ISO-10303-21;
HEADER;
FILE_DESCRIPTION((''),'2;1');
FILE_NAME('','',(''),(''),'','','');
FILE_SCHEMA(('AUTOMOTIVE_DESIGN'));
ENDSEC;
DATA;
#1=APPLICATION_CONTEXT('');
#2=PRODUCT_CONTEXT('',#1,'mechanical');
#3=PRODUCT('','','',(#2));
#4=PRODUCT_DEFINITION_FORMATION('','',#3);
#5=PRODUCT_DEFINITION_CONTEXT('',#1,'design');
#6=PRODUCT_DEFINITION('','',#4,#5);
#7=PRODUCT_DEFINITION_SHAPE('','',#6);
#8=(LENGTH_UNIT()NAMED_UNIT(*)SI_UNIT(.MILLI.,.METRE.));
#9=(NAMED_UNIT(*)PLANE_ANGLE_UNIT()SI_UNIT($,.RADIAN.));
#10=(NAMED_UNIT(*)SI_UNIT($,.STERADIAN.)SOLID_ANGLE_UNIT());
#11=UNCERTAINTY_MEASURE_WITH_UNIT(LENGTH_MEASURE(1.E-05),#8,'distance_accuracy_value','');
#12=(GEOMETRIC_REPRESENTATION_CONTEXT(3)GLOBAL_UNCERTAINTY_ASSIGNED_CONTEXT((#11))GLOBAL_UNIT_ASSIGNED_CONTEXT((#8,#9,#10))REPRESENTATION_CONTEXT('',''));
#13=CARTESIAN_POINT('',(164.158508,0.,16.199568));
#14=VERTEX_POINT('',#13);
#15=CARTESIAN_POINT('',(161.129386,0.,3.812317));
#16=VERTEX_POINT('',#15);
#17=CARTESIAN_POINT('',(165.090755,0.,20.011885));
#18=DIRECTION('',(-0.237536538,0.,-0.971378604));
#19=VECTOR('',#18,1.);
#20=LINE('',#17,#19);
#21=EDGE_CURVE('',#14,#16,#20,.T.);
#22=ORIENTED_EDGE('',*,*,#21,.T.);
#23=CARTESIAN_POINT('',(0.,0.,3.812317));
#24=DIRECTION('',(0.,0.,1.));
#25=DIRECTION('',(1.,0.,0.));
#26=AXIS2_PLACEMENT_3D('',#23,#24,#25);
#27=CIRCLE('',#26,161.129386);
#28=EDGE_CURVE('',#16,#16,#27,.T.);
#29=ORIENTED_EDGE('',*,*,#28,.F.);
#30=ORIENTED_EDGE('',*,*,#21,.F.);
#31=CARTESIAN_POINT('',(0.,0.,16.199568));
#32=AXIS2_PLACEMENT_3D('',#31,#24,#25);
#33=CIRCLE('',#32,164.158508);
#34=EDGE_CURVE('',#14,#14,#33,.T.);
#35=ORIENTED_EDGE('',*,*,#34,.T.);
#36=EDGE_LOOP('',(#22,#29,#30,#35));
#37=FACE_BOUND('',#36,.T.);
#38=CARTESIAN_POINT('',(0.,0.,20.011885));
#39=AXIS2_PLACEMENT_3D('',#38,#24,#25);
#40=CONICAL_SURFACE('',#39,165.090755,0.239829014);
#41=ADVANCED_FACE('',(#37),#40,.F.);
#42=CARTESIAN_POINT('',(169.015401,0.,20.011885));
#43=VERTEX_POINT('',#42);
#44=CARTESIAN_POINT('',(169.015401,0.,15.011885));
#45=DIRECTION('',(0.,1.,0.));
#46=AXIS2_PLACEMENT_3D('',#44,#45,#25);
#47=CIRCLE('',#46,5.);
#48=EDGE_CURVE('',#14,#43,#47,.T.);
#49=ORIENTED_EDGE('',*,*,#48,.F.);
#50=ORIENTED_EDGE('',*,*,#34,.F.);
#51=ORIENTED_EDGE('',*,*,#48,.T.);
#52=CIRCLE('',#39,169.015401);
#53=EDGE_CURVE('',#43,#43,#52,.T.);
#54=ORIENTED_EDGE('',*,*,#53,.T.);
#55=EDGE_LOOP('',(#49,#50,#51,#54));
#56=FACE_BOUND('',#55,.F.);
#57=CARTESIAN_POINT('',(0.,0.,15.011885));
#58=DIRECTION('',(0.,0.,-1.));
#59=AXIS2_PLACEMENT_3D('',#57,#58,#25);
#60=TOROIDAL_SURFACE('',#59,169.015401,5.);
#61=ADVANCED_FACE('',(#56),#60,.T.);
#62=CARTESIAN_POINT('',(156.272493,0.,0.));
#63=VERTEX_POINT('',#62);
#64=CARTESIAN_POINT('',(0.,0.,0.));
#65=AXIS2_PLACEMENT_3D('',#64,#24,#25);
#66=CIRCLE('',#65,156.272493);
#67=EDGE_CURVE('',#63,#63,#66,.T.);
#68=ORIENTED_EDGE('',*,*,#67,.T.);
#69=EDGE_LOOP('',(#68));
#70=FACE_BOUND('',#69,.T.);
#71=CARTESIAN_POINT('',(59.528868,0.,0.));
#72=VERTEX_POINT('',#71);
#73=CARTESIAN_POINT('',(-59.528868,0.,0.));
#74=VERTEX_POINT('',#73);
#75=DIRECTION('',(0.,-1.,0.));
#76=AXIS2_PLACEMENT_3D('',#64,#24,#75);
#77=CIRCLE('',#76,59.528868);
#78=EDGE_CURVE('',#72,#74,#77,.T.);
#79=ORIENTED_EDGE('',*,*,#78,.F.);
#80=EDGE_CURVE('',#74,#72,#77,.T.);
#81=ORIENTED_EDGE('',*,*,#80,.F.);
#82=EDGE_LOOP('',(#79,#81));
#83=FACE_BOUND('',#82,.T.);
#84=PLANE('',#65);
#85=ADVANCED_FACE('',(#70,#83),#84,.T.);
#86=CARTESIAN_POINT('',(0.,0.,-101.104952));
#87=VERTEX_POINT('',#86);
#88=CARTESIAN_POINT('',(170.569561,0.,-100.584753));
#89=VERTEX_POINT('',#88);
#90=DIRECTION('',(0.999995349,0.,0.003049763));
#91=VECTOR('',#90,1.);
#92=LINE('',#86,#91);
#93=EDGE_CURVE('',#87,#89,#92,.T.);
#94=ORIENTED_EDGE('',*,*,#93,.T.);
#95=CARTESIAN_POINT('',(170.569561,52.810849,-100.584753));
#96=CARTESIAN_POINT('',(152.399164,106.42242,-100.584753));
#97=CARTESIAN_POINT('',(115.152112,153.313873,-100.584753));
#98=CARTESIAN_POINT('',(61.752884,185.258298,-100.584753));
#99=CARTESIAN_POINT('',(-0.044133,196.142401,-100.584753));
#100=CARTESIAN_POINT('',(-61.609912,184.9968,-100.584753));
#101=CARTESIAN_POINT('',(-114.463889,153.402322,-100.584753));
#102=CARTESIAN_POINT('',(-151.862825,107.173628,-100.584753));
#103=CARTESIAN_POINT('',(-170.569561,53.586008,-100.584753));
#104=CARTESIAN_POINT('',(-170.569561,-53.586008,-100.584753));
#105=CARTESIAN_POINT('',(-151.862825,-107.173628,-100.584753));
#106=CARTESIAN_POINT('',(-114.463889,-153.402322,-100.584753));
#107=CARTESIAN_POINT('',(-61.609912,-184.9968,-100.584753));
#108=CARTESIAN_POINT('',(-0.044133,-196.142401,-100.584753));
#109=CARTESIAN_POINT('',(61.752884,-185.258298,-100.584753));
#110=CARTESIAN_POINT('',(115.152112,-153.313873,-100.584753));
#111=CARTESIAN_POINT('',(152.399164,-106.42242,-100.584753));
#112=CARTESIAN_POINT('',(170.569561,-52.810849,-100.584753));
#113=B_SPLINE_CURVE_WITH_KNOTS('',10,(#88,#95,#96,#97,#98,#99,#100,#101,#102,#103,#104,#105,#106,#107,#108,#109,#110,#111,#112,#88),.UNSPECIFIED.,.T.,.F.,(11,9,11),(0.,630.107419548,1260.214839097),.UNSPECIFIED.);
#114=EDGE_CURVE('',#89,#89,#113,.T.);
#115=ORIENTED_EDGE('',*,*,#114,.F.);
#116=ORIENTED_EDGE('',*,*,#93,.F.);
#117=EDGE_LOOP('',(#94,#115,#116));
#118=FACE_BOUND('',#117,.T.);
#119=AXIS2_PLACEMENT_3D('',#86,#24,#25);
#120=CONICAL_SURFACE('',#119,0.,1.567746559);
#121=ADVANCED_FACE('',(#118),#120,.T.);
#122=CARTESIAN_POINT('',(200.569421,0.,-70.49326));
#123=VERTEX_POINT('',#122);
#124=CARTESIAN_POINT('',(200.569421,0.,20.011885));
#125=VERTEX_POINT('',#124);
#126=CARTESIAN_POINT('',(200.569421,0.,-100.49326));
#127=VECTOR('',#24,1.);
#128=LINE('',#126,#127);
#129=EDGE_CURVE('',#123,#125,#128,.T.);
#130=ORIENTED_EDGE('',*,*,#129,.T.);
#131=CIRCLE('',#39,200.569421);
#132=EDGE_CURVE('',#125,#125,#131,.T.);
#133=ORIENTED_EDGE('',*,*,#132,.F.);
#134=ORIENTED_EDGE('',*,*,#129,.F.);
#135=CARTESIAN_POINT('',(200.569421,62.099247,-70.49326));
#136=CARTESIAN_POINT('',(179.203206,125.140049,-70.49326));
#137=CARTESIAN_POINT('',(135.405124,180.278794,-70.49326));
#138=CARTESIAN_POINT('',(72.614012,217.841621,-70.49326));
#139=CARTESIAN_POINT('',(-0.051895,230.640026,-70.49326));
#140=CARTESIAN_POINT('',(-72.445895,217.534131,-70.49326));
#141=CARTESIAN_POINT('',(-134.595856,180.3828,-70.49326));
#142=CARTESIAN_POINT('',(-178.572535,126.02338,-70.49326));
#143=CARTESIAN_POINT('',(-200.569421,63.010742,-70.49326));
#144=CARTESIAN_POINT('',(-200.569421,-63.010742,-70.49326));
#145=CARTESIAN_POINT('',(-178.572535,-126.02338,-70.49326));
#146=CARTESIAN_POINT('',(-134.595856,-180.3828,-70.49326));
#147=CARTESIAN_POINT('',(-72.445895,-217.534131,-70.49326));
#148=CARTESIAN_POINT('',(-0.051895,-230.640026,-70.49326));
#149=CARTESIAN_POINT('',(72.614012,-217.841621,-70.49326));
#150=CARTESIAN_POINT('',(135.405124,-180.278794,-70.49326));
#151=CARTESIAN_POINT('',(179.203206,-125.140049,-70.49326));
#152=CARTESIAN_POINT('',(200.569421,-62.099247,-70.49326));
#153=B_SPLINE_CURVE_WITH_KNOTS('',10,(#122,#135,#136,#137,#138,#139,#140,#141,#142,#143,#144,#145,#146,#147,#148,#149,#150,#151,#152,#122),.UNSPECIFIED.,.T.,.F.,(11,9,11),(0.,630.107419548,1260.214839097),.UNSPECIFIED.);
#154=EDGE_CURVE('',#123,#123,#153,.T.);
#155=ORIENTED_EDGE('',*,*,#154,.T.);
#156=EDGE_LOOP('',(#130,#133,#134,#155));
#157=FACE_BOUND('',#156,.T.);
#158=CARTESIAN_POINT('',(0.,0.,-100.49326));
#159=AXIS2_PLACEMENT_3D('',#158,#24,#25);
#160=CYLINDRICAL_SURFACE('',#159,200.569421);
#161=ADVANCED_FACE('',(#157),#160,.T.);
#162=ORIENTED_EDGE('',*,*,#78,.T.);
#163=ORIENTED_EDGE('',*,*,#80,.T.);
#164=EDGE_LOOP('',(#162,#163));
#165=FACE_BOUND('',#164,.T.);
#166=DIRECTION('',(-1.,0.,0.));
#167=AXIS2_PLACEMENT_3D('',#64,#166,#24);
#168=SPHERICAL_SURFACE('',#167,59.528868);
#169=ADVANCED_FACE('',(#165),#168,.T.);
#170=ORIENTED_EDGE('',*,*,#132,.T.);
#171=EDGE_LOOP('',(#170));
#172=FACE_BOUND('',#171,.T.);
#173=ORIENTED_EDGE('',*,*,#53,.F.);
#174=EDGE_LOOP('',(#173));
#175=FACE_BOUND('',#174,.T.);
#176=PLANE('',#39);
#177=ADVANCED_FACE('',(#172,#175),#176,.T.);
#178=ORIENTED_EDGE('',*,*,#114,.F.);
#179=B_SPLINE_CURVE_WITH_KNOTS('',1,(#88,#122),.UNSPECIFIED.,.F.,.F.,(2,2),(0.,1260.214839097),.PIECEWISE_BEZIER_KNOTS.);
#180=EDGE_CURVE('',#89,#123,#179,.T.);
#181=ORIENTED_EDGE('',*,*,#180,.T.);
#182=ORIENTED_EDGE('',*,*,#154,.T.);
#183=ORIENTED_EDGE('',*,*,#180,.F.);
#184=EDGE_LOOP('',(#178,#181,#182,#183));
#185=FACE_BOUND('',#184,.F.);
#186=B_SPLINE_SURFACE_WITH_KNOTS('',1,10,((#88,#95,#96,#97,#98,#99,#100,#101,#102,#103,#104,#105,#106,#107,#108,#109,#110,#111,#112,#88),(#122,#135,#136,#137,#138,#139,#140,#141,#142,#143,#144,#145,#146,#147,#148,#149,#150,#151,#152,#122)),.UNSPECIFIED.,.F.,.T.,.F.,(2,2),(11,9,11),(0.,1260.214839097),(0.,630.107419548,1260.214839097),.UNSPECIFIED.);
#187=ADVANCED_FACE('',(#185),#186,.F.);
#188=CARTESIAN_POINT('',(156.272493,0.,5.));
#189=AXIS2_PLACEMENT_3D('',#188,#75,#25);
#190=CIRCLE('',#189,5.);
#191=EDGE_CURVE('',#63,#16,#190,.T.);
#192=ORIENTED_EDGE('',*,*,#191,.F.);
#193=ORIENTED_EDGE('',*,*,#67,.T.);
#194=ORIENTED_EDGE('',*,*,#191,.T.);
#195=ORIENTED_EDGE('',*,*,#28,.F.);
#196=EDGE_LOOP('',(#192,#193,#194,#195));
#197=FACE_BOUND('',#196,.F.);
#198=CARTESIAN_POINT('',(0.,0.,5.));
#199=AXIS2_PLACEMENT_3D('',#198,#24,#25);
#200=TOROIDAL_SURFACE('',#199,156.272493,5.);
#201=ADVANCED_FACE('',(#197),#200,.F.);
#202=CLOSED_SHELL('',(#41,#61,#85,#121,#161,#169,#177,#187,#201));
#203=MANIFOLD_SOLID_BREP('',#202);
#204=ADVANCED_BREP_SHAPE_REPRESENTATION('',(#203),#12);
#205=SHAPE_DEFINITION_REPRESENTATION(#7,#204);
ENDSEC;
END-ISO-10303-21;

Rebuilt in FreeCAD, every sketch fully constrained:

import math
import FreeCAD as App
import Part
import Sketcher

V = App.Vector


def edges_at(feature, points):
    """Names of the edges that pass closest to the given points."""
    edges = feature.Shape.Edges
    near = lambda p: min(range(len(edges)), key=lambda i: edges[i].distToShape(Part.Vertex(*p))[0])
    return sorted({f"Edge{near(p) + 1}" for p in points})


def add_polygon(sketch, points):
    """Adds a closed chain of lines whose ends are joined by coincident constraints."""
    first, n = sketch.GeometryCount, len(points)
    for a, b in zip(points, points[1:] + points[:1]):
        sketch.addGeometry(Part.LineSegment(App.Vector(*a, 0), App.Vector(*b, 0)), False)
    for i in range(n):
        sketch.addConstraint(Sketcher.Constraint("Coincident", first + i, 2, first + (i + 1) % n, 1))

doc = App.newDocument("Part")
params = doc.addObject("Spreadsheet::Sheet", "Params")
for row, (alias, value) in enumerate([
    ("revolution_angle", "360 deg"),
    ("chamfer_size", "30 mm"),
    ("revolution2_angle", "360 deg"),
    ("fillet_radius", "5 mm"),
], start=1):
    params.set(f"A{row}", alias)
    params.set(f"B{row}", "=" + value)
    params.setAlias(f"B{row}", alias)

body = doc.addObject("PartDesign::Body", "Body")

sketch1 = doc.addObject("Sketcher::SketchObject", "Sketch")
body.addObject(sketch1)
sketch1.AttachmentSupport = (doc.XZ_Plane, [""])
sketch1.MapMode = "FlatFace"
add_polygon(sketch1, [(0, 0), (0, -101.104952), (200.569421, -100.49326), (200.569421, 20.011885), (165.090755, 20.011885), (160.197139, 0)])
sketch1.addConstraint(Sketcher.Constraint("Vertical", 0))
sketch1.addConstraint(Sketcher.Constraint("Vertical", 2))
sketch1.addConstraint(Sketcher.Constraint("Horizontal", 3))
sketch1.addConstraint(Sketcher.Constraint("Horizontal", 5))
sketch1.addConstraint(Sketcher.Constraint("Coincident", 5, 2, -1, 1))
sketch1.addConstraint(Sketcher.Constraint("DistanceX", 5, 2, 5, 1, 160.197139))
sketch1.addConstraint(Sketcher.Constraint("DistanceY", 0, 2, 0, 1, 101.104952))
sketch1.addConstraint(Sketcher.Constraint("Distance", 4, 20.60153))
sketch1.addConstraint(Sketcher.Constraint("DistanceX", 3, 2, 3, 1, 35.478666))
sketch1.addConstraint(Sketcher.Constraint("DistanceY", 2, 1, 2, 2, 120.505145))
sketch1.addConstraint(Sketcher.Constraint("DistanceX", -1, 1, 1, 2, 200.569421))
revolution = doc.addObject("PartDesign::Revolution", "Revolution")
body.addObject(revolution)
revolution.Profile = sketch1
revolution.ReferenceAxis = (sketch1, ["V_Axis"])
revolution.setExpression("Angle", "Params.revolution_angle")
doc.recompute()

chamfer = doc.addObject("PartDesign::Chamfer", "Chamfer")
body.addObject(chamfer)
chamfer.Base = (revolution, edges_at(revolution, [(-200.569, 0, -100.493)]))
chamfer.setExpression("Size", "Params.chamfer_size")

sketch2 = doc.addObject("Sketcher::SketchObject", "Sketch001")
body.addObject(sketch2)
sketch2.AttachmentSupport = (doc.XZ_Plane, [""])
sketch2.MapMode = "FlatFace"
sketch2.addGeometry(Part.ArcOfCircle(Part.Circle(V(0, 0, 0), V(0, 0, 1), 59.528868), math.radians(0), math.radians(180)), False)
sketch2.addGeometry(Part.LineSegment(V(-59.528868, 0, 0), V(59.528868, 0, 0)), False)
sketch2.addConstraint(Sketcher.Constraint("Coincident", 0, 1, 1, 2))
sketch2.addConstraint(Sketcher.Constraint("Coincident", 1, 1, 0, 2))
sketch2.addConstraint(Sketcher.Constraint("Horizontal", 1))
sketch2.addConstraint(Sketcher.Constraint("Coincident", 0, 3, -1, 1))
sketch2.addConstraint(Sketcher.Constraint("PointOnObject", 0, 1, -1))
sketch2.addConstraint(Sketcher.Constraint("Radius", 0, 59.528868))
revolution2 = doc.addObject("PartDesign::Revolution", "Revolution001")
body.addObject(revolution2)
revolution2.Profile = sketch2
revolution2.ReferenceAxis = (sketch2, ["H_Axis"])
revolution2.setExpression("Angle", "Params.revolution2_angle")
doc.recompute()

fillet = doc.addObject("PartDesign::Fillet", "Fillet")
body.addObject(fillet)
fillet.Base = (revolution2, edges_at(revolution2, [(-165.091, 0, 20.012), (-160.197, 0, 0)]))
fillet.setExpression("Radius", "Params.fillet_radius")

doc.recompute()
